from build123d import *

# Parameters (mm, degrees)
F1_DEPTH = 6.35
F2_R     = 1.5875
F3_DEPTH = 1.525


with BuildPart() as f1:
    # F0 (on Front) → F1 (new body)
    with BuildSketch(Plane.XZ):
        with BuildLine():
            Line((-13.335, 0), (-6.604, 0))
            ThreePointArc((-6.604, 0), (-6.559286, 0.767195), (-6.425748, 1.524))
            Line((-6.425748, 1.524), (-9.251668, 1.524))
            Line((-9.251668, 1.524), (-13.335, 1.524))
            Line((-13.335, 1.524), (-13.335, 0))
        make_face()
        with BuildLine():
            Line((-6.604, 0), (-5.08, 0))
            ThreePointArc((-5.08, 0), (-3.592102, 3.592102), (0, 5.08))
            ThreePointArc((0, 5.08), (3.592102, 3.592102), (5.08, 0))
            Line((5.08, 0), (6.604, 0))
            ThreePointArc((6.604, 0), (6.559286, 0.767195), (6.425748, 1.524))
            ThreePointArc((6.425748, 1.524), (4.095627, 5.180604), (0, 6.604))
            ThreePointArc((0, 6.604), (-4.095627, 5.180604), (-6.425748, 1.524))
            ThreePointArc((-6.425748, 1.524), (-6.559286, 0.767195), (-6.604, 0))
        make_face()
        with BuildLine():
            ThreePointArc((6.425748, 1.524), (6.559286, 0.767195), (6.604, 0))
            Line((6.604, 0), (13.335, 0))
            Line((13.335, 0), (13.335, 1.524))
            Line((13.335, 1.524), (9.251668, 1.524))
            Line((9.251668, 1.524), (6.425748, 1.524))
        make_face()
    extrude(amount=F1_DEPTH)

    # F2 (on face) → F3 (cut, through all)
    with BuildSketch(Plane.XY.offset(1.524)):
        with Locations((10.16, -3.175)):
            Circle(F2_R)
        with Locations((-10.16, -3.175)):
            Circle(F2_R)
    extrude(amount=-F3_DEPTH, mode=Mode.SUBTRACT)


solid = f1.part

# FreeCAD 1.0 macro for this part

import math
import FreeCAD as App
import Part
import Sketcher

V = App.Vector
Q = App.Units.Quantity

doc = App.newDocument("Part")
body = doc.addObject("PartDesign::Body", "Body")

# Sketch on XZ plane
sketch1 = doc.addObject("Sketcher::SketchObject", "Sketch")
body.addObject(sketch1)
sketch1.AttachmentSupport = (doc.XZ_Plane, [""])
sketch1.MapMode = "FlatFace"
sketch1.addGeometry(Part.LineSegment(V(-13.335, 0, 0), V(-5.08, 0, 0)), False)
sketch1.addGeometry(Part.ArcOfCircle(Part.Circle(V(0.000002, -0.000002, 0), V(0, 0, 1), 5.080002), math.radians(90.000017), math.radians(179.999983)), False)
sketch1.addGeometry(Part.ArcOfCircle(Part.Circle(V(-0.000002, -0.000002, 0), V(0, 0, 1), 5.080002), math.radians(0.000017), math.radians(89.999983)), False)
sketch1.addGeometry(Part.LineSegment(V(5.08, 0, 0), V(13.335, 0, 0)), False)
sketch1.addGeometry(Part.LineSegment(V(13.335, 0, 0), V(13.335, 1.524, 0)), False)
sketch1.addGeometry(Part.LineSegment(V(13.335, 1.524, 0), V(6.425748, 1.524, 0)), False)
sketch1.addGeometry(Part.ArcOfCircle(Part.Circle(V(0.000001, 0.000001, 0), V(0, 0, 1), 6.603999), math.radians(13.342356), math.radians(90.000006)), False)
sketch1.addGeometry(Part.ArcOfCircle(Part.Circle(V(-0.000001, 0.000001, 0), V(0, 0, 1), 6.603999), math.radians(89.999994), math.radians(166.657644)), False)
sketch1.addGeometry(Part.LineSegment(V(-6.425748, 1.524, 0), V(-13.335, 1.524, 0)), False)
sketch1.addGeometry(Part.LineSegment(V(-13.335, 1.524, 0), V(-13.335, 0, 0)), False)
sketch1.addConstraint(Sketcher.Constraint("Coincident", 0, 2, 1, 2))
sketch1.addConstraint(Sketcher.Constraint("Tangent", 1, 1, 2, 2))
sketch1.addConstraint(Sketcher.Constraint("Coincident", 2, 1, 3, 1))
sketch1.addConstraint(Sketcher.Constraint("Coincident", 3, 2, 4, 1))
sketch1.addConstraint(Sketcher.Constraint("Coincident", 4, 2, 5, 1))
sketch1.addConstraint(Sketcher.Constraint("Coincident", 5, 2, 6, 1))
sketch1.addConstraint(Sketcher.Constraint("Tangent", 6, 2, 7, 1))
sketch1.addConstraint(Sketcher.Constraint("Coincident", 7, 2, 8, 1))
sketch1.addConstraint(Sketcher.Constraint("Coincident", 8, 2, 9, 1))
sketch1.addConstraint(Sketcher.Constraint("Coincident", 9, 2, 0, 1))
sketch1.addConstraint(Sketcher.Constraint("Horizontal", 0))
sketch1.addConstraint(Sketcher.Constraint("Horizontal", 3))
sketch1.addConstraint(Sketcher.Constraint("Vertical", 4))
sketch1.addConstraint(Sketcher.Constraint("Horizontal", 5))
sketch1.addConstraint(Sketcher.Constraint("Horizontal", 8))
sketch1.addConstraint(Sketcher.Constraint("Vertical", 9))
sketch1.addConstraint(Sketcher.Constraint("Coincident", 1, 3, -1, 1))
sketch1.addConstraint(Sketcher.Constraint("Coincident", 6, 3, -1, 1))
sketch1.addConstraint(Sketcher.Constraint("Equal", 1, 2))
sketch1.addConstraint(Sketcher.Constraint("Equal", 6, 7))
sketch1.addConstraint(Sketcher.Constraint("Symmetric", 3, 2, 9, 2, -1, 1))
sketch1.addConstraint(Sketcher.Constraint("PointOnObject", 0, 2, -1))
sketch1.addConstraint(Sketcher.Constraint("PointOnObject", 1, 1, -2))
sketch1.addConstraint(Sketcher.Constraint("PointOnObject", 6, 2, -2))
sketch1.addConstraint(Sketcher.Constraint("Horizontal", 5, 2, 7, 2))
sketch1.addConstraint(Sketcher.Constraint("Radius", 1, Q("0.2000001 in")))
sketch1.addConstraint(Sketcher.Constraint("Radius", 6, Q("0.26 in")))
sketch1.addConstraint(Sketcher.Constraint("DistanceY", 4, 1, 4, 2, Q("0.06 in")))
sketch1.addConstraint(Sketcher.Constraint("DistanceX", 0, 1, 0, 2, Q("0.325 in")))
pad1 = doc.addObject("PartDesign::Pad", "Pad")
body.addObject(pad1)
pad1.Profile = sketch1
pad1.Length = Q("0.25 in")

# Sketch on XY plane
sketch2 = doc.addObject("Sketcher::SketchObject", "Sketch001")
body.addObject(sketch2)
sketch2.AttachmentSupport = (doc.XY_Plane, [""])
sketch2.MapMode = "FlatFace"
sketch2.AttachmentOffset = App.Placement(V(0, 0, 0.06 * 25.4), App.Rotation())
sketch2.addGeometry(Part.Circle(V(10.16, -3.175, 0), V(0, 0, 1), 1.5875), False)
sketch2.addGeometry(Part.Circle(V(-10.16, -3.175, 0), V(0, 0, 1), 1.5875), False)
sketch2.addConstraint(Sketcher.Constraint("Equal", 0, 1))
sketch2.addConstraint(Sketcher.Constraint("Symmetric", 0, 3, 1, 3, -2))
sketch2.addConstraint(Sketcher.Constraint("Diameter", 0, Q("0.125 in")))
sketch2.addConstraint(Sketcher.Constraint("DistanceX", -1, 1, 0, 3, Q("0.4 in")))
sketch2.addConstraint(Sketcher.Constraint("DistanceY", 0, 3, -1, 1, Q("0.125 in")))
pocket1 = doc.addObject("PartDesign::Pocket", "Pocket")
body.addObject(pocket1)
pocket1.Profile = sketch2
pocket1.Type = "ThroughAll"

doc.recompute()
